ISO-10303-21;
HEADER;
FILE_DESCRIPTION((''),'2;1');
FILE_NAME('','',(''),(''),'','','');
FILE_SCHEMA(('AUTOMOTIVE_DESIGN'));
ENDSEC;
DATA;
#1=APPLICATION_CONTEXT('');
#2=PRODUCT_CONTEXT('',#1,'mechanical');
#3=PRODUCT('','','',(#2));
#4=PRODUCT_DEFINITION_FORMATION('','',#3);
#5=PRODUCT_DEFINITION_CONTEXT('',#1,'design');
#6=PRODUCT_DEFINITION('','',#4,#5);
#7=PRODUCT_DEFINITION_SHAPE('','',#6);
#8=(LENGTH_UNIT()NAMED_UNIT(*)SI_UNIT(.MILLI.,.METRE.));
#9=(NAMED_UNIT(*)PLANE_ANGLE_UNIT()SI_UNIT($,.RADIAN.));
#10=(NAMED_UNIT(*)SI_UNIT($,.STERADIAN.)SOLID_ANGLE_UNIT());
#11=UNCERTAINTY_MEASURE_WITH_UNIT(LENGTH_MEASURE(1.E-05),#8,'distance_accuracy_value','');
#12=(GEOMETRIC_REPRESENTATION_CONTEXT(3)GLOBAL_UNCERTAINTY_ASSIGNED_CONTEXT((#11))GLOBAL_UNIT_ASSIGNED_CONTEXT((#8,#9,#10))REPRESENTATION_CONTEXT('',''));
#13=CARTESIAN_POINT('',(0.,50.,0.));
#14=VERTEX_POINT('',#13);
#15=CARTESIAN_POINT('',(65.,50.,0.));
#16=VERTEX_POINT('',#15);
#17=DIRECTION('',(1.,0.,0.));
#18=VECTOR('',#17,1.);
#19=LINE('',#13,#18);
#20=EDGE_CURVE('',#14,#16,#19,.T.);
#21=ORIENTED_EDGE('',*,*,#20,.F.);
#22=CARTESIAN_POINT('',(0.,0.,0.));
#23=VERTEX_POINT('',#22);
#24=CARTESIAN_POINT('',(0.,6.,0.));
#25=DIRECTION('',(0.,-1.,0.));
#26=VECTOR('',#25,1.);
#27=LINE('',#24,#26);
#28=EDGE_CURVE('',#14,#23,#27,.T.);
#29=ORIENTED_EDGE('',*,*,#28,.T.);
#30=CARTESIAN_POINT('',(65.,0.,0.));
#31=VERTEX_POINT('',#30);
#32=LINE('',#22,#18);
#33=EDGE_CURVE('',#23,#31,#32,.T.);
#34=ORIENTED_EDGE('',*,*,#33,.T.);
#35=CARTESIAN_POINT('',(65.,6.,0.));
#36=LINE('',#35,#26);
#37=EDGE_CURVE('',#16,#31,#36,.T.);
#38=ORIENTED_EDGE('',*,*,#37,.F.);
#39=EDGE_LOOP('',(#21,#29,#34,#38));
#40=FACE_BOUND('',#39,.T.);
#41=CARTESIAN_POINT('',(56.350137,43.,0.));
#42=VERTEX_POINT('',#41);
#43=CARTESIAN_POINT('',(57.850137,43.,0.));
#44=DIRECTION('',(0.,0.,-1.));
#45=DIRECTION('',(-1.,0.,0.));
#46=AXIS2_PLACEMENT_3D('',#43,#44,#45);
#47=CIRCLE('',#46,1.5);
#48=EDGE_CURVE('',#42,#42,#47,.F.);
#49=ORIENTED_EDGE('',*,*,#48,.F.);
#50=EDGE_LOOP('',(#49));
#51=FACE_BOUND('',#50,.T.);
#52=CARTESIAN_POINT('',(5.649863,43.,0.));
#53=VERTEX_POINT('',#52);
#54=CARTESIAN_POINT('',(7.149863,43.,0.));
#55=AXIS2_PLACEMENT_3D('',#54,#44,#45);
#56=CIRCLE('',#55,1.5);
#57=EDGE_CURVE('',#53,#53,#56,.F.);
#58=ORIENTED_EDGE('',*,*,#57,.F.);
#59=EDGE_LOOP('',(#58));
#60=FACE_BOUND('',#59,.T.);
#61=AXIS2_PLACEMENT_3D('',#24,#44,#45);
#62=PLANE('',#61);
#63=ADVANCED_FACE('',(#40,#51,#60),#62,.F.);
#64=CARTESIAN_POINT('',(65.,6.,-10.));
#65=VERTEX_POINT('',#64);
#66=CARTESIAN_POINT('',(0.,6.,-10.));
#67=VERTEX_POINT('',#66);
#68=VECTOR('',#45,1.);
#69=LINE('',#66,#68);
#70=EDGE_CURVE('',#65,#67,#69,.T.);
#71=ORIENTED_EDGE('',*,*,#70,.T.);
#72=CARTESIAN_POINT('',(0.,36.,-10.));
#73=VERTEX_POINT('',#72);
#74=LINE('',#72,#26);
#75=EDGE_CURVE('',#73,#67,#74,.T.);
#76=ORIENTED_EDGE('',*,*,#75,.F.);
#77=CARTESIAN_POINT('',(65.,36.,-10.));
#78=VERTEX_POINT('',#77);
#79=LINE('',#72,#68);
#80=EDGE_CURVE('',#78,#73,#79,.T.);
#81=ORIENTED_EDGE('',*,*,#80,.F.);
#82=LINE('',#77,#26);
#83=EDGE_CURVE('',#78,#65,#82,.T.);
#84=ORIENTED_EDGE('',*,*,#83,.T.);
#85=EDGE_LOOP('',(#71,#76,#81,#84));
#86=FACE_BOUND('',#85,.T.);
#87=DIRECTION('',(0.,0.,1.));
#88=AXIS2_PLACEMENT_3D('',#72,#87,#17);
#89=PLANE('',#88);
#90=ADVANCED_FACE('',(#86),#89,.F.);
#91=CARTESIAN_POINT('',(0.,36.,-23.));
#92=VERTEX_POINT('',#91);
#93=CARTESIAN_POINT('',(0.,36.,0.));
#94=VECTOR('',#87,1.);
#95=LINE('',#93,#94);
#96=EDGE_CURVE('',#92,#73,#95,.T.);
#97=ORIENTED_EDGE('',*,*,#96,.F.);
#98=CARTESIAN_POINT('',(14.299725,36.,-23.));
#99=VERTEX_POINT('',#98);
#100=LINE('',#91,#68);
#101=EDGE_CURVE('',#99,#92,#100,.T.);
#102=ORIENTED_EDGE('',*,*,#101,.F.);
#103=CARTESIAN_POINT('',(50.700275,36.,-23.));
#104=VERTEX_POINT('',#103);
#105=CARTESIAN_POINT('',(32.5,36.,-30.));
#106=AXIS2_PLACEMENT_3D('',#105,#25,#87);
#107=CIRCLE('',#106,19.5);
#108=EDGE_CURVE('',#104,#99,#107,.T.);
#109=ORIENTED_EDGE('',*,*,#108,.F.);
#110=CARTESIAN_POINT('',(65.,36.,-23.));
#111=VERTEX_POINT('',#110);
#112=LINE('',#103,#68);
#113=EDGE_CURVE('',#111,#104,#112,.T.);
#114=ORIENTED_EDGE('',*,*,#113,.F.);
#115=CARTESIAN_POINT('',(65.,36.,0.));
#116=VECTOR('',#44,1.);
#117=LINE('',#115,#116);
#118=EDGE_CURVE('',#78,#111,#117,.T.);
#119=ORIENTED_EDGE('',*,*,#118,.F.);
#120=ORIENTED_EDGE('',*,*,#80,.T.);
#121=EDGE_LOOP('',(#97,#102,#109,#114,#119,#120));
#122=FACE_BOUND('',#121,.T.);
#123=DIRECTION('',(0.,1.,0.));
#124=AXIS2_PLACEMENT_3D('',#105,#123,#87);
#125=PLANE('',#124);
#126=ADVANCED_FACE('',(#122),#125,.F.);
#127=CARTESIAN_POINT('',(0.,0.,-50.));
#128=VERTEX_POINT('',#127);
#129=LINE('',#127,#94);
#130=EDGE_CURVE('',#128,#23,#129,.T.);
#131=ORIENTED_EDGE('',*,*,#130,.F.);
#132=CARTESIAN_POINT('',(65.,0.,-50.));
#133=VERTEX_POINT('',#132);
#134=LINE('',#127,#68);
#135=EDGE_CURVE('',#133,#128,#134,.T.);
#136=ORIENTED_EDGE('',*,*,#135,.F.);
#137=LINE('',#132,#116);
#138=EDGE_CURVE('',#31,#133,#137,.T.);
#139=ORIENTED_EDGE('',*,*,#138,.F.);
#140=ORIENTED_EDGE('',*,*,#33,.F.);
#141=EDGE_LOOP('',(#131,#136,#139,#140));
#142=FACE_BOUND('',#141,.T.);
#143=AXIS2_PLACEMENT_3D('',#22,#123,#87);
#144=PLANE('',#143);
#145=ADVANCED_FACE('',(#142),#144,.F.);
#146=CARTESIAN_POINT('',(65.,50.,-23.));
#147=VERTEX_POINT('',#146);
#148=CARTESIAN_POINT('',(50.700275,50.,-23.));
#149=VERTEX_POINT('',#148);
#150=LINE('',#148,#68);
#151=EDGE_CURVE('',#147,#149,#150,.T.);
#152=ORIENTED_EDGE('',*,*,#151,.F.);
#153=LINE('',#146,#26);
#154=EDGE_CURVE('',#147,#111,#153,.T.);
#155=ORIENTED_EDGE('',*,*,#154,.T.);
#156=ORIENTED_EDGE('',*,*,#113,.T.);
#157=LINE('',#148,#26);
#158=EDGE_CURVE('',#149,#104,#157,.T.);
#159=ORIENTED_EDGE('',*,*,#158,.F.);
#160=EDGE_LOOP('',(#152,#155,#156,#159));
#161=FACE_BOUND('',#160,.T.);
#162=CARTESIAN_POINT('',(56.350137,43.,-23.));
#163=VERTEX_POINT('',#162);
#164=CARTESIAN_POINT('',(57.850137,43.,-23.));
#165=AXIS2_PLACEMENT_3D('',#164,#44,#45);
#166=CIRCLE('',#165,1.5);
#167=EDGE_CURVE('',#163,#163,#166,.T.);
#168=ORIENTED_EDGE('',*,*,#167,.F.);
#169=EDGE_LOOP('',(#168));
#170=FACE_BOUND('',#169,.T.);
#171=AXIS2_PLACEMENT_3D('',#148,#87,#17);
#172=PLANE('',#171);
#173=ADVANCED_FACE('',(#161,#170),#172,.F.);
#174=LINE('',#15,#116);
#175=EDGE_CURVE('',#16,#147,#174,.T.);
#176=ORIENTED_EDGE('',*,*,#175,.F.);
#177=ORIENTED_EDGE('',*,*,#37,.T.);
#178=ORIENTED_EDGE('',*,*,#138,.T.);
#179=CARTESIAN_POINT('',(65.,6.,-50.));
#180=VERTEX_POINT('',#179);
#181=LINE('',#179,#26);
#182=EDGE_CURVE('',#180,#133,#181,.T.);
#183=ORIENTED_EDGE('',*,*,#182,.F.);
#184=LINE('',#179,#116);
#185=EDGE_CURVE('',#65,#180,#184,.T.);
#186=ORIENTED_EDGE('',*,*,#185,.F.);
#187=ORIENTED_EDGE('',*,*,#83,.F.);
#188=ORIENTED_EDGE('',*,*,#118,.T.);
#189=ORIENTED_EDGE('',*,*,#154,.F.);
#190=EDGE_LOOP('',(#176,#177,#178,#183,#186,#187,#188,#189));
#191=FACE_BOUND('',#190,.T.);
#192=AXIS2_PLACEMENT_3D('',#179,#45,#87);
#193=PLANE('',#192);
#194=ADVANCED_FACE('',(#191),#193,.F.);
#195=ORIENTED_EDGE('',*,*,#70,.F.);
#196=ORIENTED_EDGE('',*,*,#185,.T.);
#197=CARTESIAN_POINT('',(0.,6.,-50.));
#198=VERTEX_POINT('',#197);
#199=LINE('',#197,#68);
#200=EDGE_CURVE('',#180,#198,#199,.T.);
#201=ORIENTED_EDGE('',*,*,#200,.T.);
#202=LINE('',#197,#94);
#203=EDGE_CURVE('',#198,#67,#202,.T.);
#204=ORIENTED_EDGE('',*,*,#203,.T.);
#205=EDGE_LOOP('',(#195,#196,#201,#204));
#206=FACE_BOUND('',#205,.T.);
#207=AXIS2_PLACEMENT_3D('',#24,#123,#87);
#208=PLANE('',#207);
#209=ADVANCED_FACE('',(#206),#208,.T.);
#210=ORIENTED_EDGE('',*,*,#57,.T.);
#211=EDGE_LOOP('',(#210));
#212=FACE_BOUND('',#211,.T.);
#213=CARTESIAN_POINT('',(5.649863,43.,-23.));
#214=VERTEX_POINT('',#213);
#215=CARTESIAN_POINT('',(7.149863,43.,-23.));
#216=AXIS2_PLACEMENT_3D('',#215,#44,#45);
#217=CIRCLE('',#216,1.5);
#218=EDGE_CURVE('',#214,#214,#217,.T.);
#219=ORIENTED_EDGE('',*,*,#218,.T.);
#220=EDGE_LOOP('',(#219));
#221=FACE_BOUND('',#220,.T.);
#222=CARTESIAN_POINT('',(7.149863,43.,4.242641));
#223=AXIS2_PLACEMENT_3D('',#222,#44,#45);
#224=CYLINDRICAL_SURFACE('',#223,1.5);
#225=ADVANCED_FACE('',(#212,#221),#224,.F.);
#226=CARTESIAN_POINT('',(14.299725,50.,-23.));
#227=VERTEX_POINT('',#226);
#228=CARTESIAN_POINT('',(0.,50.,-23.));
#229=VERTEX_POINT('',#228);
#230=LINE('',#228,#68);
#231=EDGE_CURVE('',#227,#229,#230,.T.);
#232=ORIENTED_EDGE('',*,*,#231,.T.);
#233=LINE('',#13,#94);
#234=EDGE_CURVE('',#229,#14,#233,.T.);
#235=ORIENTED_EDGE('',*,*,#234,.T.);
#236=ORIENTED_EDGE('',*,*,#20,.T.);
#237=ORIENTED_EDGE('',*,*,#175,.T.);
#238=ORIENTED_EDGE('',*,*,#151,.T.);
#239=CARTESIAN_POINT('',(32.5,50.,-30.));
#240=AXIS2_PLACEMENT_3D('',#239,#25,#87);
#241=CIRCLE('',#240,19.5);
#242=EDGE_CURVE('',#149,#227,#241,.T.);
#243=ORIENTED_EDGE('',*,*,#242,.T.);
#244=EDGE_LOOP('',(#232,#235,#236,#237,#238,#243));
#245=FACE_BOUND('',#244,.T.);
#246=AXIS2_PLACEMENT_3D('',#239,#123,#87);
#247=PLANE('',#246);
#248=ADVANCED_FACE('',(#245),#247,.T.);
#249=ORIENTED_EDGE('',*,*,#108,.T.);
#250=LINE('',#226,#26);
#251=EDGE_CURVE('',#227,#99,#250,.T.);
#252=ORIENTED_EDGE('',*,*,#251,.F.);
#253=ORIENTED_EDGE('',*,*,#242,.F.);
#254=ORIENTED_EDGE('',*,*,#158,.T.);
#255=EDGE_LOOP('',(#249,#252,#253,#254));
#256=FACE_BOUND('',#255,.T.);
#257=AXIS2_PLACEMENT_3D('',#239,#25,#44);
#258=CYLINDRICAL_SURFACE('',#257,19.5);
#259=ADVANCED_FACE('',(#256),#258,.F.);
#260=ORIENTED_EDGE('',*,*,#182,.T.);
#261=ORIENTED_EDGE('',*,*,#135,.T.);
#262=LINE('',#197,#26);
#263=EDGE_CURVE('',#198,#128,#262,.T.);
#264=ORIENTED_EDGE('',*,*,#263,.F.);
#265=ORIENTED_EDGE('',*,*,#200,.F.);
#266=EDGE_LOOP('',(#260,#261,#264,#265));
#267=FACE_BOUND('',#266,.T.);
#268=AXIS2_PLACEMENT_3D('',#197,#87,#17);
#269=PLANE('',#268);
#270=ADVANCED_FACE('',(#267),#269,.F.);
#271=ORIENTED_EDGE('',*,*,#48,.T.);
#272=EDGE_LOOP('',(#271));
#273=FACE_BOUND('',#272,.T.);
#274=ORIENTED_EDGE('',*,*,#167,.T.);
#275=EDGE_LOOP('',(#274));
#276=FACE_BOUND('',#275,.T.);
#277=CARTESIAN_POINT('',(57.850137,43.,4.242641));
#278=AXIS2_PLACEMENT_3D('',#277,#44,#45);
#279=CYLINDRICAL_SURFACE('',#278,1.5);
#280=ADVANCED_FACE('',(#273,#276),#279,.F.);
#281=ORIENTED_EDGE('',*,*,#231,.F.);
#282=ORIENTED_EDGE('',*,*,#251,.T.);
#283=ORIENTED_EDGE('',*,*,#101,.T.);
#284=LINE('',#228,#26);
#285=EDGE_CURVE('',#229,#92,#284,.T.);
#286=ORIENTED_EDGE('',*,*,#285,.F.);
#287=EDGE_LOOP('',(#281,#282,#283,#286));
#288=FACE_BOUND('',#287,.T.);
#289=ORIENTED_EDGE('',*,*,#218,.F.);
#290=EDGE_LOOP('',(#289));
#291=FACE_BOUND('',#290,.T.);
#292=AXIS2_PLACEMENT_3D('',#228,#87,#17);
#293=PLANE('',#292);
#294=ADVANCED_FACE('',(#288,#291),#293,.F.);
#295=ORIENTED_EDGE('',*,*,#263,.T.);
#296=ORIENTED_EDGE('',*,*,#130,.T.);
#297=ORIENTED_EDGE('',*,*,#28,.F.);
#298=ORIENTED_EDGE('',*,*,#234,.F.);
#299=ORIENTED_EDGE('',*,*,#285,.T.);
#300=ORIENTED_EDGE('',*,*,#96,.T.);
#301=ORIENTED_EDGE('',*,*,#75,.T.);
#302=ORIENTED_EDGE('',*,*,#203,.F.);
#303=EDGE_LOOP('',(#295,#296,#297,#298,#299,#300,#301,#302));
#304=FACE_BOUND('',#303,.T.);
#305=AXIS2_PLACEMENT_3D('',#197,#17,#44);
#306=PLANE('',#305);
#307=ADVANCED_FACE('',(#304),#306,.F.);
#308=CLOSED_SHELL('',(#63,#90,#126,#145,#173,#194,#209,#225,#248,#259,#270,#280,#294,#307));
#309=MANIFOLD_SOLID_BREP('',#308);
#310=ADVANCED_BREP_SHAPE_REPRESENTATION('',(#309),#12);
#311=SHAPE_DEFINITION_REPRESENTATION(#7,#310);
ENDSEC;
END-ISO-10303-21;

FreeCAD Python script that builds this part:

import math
import FreeCAD as App
import Part
import Sketcher
from FreeCAD import Vector

doc = App.newDocument("Part")
body = doc.addObject("PartDesign::Body", "Body")

# Sketch on XZ plane
sketch1 = body.newObject("Sketcher::SketchObject", "Sketch")
sketch1.AttachmentSupport = (doc.getObject("XZ_Plane"), [""])
sketch1.MapMode = "FlatFace"
sketch1.addGeometry([
    Part.LineSegment(Vector(0, -50, 0), Vector(0, 0, 0)),
    Part.LineSegment(Vector(0, 0, 0), Vector(65, 0, 0)),
    Part.LineSegment(Vector(65, 0, 0), Vector(65, -50, 0)),
    Part.LineSegment(Vector(65, -50, 0), Vector(0, -50, 0)),
], False)
sketch1.addConstraint([
    Sketcher.Constraint("Coincident", 0, 2, 1, 1),
    Sketcher.Constraint("Coincident", 1, 2, 2, 1),
    Sketcher.Constraint("Coincident", 2, 2, 3, 1),
    Sketcher.Constraint("Coincident", 3, 2, 0, 1),
    Sketcher.Constraint("Vertical", 0),
    Sketcher.Constraint("Horizontal", 1),
    Sketcher.Constraint("Vertical", 2),
    Sketcher.Constraint("Horizontal", 3),
    Sketcher.Constraint("Coincident", 0, 2, -1, 1),
    Sketcher.Constraint("DistanceX", 1, 1, 1, 2, 65.0),
    Sketcher.Constraint("DistanceY", 0, 1, 0, 2, 50.0),
])
pad1 = body.newObject("PartDesign::Pad", "Pad")
pad1.Profile = sketch1
pad1.Length = 6
pad1.Reversed = True

# Sketch on XZ plane
sketch2 = body.newObject("Sketcher::SketchObject", "Sketch001")
sketch2.AttachmentSupport = (doc.getObject("XZ_Plane"), [""])
sketch2.MapMode = "FlatFace"
sketch2.AttachmentOffset = App.Placement(Vector(0, 0, -6), App.Rotation())
sketch2.addGeometry([
    Part.LineSegment(Vector(0, -10, 0), Vector(0, 0, 0)),
    Part.LineSegment(Vector(0, 0, 0), Vector(65, 0, 0)),
    Part.LineSegment(Vector(65, 0, 0), Vector(65, -10, 0)),
    Part.LineSegment(Vector(65, -10, 0), Vector(0, -10, 0)),
], False)
sketch2.addConstraint([
    Sketcher.Constraint("Coincident", 0, 2, 1, 1),
    Sketcher.Constraint("Coincident", 1, 2, 2, 1),
    Sketcher.Constraint("Coincident", 2, 2, 3, 1),
    Sketcher.Constraint("Coincident", 3, 2, 0, 1),
    Sketcher.Constraint("Vertical", 0),
    Sketcher.Constraint("Horizontal", 1),
    Sketcher.Constraint("Vertical", 2),
    Sketcher.Constraint("Horizontal", 3),
    Sketcher.Constraint("Coincident", 0, 2, -1, 1),
    Sketcher.Constraint("DistanceX", 1, 1, 1, 2, 65.0),
    Sketcher.Constraint("DistanceY", 0, 1, 0, 2, 10.0),
])
pad2 = body.newObject("PartDesign::Pad", "Pad001")
pad2.Profile = sketch2
pad2.Length = 30
pad2.Reversed = True

# Sketch on XZ plane
sketch3 = body.newObject("Sketcher::SketchObject", "Sketch002")
sketch3.AttachmentSupport = (doc.getObject("XZ_Plane"), [""])
sketch3.MapMode = "FlatFace"
sketch3.AttachmentOffset = App.Placement(Vector(0, 0, -36), App.Rotation())
sketch3.addGeometry([
    Part.LineSegment(Vector(0, 0, 0), Vector(65, 0, 0)),  # 0
    Part.LineSegment(Vector(65, 0, 0), Vector(65, -23, 0)),  # 1
    Part.LineSegment(Vector(65, -23, 0), Vector(51, -23, 0)),  # 2
    Part.ArcOfCircle(Part.Circle(Vector(32, -30, 0), Vector(0, 0, 1), 20), math.radians(21), math.radians(159)),  # 3
    Part.LineSegment(Vector(14, -23, 0), Vector(0, -23, 0)),  # 4
    Part.LineSegment(Vector(0, -23, 0), Vector(0, 0, 0)),  # 5
], False)
sketch3.addConstraint([
    Sketcher.Constraint("Coincident", 0, 2, 1, 1),
    Sketcher.Constraint("Coincident", 1, 2, 2, 1),
    Sketcher.Constraint("Coincident", 2, 2, 3, 1),
    Sketcher.Constraint("Coincident", 3, 2, 4, 1),
    Sketcher.Constraint("Coincident", 4, 2, 5, 1),
    Sketcher.Constraint("Coincident", 5, 2, 0, 1),
    Sketcher.Constraint("Horizontal", 0),
    Sketcher.Constraint("Vertical", 1),
    Sketcher.Constraint("Horizontal", 2),
    Sketcher.Constraint("Horizontal", 4),
    Sketcher.Constraint("Vertical", 5),
    Sketcher.Constraint("Coincident", 5, 2, -1, 1),
    Sketcher.Constraint("Horizontal", 2, 2, 3, 2),
    Sketcher.Constraint("Equal", 2, 4),
    Sketcher.Constraint("Radius", 3, 19.5),
    Sketcher.Constraint("DistanceX", 0, 1, 0, 2, 65.0),
    Sketcher.Constraint("DistanceY", 1, 2, 1, 1, 23.0),
    Sketcher.Constraint("DistanceY", 3, 3, -1, 1, 30.0),
])
pad3 = body.newObject("PartDesign::Pad", "Pad002")
pad3.Profile = sketch3
pad3.Length = 14
pad3.Reversed = True

# Sketch on XY plane
sketch4 = body.newObject("Sketcher::SketchObject", "Sketch003")
sketch4.AttachmentSupport = (doc.getObject("XY_Plane"), [""])
sketch4.MapMode = "FlatFace"
sketch4.AttachmentOffset = App.Placement(Vector(0, 0, -23), App.Rotation())
sketch4.addGeometry([
    Part.Circle(Vector(57.9, 43, 0), Vector(0, 0, 1), 1.5),
    Part.Circle(Vector(7.1, 43, 0), Vector(0, 0, 1), 1.5),
], False)
sketch4.addConstraint([
    Sketcher.Constraint("Equal", 0, 1),
    Sketcher.Constraint("Horizontal", 0, 3, 1, 3),
    Sketcher.Constraint("Diameter", 0, 3.0),
    Sketcher.Constraint("DistanceY", -1, 1, 0, 3, 43.0),
    Sketcher.Constraint("DistanceX", -1, 1, 0, 3, 57.850137),
    Sketcher.Constraint("DistanceX", -1, 1, 1, 3, 7.149863),
])
pocket1 = body.newObject("PartDesign::Pocket", "Pocket")
pocket1.Profile = sketch4
pocket1.Length = 23
pocket1.Reversed = True

doc.recompute()
